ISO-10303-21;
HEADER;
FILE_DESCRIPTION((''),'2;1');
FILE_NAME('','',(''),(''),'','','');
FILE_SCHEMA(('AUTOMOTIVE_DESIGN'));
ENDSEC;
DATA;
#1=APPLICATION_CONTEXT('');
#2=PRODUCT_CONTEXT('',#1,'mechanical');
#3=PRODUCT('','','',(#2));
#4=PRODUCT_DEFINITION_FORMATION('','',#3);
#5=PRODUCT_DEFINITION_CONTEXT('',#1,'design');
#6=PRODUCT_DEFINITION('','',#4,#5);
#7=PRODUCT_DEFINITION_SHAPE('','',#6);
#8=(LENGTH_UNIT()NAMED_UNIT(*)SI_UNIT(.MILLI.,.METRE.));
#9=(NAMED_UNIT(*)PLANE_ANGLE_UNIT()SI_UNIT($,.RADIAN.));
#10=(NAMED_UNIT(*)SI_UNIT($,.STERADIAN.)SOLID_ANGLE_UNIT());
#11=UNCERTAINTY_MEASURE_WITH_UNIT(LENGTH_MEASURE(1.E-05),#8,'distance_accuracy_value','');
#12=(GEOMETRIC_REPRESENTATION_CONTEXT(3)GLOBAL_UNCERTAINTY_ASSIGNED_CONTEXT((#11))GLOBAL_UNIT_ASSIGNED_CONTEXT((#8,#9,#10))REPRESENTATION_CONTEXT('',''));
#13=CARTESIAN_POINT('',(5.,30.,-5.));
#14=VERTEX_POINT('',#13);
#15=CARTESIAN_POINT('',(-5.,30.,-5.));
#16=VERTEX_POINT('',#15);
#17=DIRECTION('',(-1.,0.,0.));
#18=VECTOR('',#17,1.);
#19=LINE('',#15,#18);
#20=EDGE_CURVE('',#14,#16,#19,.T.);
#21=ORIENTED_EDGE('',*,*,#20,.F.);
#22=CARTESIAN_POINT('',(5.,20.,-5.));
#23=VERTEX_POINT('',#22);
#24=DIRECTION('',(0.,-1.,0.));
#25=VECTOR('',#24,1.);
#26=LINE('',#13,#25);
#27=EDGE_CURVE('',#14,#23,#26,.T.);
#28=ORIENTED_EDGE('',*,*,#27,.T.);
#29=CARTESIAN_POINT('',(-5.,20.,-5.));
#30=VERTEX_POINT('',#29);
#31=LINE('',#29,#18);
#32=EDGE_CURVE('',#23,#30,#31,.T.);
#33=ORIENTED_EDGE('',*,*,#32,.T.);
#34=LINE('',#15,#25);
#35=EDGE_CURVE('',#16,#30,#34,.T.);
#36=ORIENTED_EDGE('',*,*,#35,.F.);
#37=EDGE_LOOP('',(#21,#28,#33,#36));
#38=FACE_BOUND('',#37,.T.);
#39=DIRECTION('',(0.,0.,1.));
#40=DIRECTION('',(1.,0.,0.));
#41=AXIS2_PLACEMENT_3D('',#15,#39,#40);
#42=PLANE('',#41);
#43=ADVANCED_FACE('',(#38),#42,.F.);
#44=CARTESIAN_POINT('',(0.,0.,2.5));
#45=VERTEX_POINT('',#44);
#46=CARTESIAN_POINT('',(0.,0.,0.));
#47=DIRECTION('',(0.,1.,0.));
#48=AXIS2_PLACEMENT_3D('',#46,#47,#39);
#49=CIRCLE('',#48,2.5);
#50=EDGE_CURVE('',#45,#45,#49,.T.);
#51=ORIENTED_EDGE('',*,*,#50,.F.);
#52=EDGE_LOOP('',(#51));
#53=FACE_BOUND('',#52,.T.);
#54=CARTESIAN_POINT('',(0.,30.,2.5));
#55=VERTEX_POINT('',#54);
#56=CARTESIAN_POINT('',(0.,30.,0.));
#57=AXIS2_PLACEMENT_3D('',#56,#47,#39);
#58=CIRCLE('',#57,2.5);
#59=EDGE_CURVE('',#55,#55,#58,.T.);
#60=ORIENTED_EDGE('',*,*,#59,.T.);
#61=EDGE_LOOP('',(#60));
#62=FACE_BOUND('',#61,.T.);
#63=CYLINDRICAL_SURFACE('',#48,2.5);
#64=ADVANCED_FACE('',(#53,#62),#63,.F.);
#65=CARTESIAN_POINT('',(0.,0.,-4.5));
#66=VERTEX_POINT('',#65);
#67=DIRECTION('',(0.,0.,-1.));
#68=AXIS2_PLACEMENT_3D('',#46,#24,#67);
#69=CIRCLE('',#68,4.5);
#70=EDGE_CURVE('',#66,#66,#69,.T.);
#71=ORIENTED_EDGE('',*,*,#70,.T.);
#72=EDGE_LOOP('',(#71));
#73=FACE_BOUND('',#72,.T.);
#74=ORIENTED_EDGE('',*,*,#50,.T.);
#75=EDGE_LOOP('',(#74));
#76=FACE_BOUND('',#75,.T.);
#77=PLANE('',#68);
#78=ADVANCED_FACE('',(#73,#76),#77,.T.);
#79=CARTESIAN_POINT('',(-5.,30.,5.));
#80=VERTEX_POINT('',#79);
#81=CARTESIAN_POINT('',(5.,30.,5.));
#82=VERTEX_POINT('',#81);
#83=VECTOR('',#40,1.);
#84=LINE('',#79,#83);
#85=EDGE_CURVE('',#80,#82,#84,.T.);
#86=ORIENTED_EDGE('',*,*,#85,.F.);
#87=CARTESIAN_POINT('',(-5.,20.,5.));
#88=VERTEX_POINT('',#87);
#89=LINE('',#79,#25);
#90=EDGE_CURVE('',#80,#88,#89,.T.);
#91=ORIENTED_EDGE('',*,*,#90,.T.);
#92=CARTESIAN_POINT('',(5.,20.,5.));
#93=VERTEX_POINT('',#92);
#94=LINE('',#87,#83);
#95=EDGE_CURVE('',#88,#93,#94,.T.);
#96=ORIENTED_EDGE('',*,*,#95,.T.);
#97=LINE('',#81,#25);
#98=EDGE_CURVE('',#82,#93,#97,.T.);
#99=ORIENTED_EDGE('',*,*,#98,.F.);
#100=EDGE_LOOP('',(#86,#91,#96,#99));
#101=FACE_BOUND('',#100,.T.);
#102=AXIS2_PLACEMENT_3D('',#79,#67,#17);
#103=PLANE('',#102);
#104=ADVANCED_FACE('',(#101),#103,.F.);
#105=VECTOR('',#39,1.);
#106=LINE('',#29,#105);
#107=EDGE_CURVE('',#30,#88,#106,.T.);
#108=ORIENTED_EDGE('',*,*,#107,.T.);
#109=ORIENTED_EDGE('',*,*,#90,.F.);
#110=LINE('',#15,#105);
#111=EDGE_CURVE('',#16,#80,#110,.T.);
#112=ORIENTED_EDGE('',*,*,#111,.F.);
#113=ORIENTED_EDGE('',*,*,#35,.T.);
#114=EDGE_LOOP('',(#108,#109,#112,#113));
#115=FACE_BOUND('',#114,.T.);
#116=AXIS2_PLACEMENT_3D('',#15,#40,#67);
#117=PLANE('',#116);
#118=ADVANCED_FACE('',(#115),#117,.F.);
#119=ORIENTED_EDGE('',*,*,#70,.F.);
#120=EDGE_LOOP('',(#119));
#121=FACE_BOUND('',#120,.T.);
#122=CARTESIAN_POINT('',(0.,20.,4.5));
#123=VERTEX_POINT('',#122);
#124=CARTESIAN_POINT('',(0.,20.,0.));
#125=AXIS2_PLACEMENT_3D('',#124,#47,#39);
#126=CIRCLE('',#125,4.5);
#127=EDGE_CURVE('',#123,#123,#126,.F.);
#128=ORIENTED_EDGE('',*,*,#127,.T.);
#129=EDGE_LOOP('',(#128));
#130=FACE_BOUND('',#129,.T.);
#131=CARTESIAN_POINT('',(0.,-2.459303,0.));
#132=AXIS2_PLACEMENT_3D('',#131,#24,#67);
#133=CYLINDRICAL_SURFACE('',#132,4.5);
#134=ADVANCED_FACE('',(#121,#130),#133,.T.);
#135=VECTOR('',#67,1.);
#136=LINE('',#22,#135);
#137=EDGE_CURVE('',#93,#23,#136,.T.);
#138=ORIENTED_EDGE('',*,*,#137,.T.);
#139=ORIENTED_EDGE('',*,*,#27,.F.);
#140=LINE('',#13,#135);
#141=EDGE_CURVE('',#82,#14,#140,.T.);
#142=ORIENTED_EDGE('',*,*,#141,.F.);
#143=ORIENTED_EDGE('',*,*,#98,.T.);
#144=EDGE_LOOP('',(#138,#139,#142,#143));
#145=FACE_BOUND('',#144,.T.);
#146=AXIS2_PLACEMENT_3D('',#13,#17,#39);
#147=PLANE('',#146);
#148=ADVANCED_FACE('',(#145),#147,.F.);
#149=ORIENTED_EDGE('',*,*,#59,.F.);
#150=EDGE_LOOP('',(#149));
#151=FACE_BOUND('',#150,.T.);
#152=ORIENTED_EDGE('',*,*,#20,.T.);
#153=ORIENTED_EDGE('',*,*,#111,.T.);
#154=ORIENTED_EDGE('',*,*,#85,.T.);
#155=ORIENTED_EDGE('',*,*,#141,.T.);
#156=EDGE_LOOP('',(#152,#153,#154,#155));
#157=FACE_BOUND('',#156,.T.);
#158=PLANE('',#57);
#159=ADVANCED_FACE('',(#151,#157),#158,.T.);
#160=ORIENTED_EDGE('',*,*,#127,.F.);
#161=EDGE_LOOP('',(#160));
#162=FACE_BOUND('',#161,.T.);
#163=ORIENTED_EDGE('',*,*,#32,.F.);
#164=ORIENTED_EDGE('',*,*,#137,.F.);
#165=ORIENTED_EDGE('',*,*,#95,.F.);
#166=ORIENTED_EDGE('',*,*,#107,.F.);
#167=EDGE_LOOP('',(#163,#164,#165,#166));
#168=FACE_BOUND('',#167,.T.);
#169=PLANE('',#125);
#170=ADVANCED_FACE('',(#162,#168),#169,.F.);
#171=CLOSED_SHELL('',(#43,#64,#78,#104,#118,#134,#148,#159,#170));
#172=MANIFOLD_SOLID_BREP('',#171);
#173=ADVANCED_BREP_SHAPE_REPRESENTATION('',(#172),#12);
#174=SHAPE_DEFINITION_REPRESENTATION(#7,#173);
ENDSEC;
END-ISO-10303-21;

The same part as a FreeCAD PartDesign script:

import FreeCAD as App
import Part
import Sketcher
Q = App.Units.Quantity

doc = App.newDocument("Part")
body = doc.addObject("PartDesign::Body", "Body")

sketch1 = doc.addObject("Sketcher::SketchObject", "Sketch")
body.addObject(sketch1)
sketch1.AttachmentSupport = (doc.XY_Plane, [""])
sketch1.MapMode = "FlatFace"
sketch1.addGeometry([
    Part.LineSegment(App.Vector(0, 20, 0), App.Vector(0, 0, 0)),
    Part.LineSegment(App.Vector(0, 0, 0), App.Vector(4.5, 0, 0)),
    Part.LineSegment(App.Vector(4.5, 0, 0), App.Vector(4.5, 20, 0)),
    Part.LineSegment(App.Vector(4.5, 20, 0), App.Vector(0, 20, 0)),
], False)
sketch1.addConstraint([
    Sketcher.Constraint("Coincident", 0, 2, 1, 1),
    Sketcher.Constraint("Coincident", 1, 2, 2, 1),
    Sketcher.Constraint("Coincident", 2, 2, 3, 1),
    Sketcher.Constraint("Coincident", 3, 2, 0, 1),
    Sketcher.Constraint("Vertical", 0),
    Sketcher.Constraint("Horizontal", 1),
    Sketcher.Constraint("Vertical", 2),
    Sketcher.Constraint("Horizontal", 3),
    Sketcher.Constraint("Coincident", 0, 2, -1, 1),
    Sketcher.Constraint("DistanceY", 0, 2, 0, 1, Q("20 mm")),
    Sketcher.Constraint("DistanceX", 1, 1, 1, 2, Q("4.5 mm")),
])
revolution = doc.addObject("PartDesign::Revolution", "Revolution")
body.addObject(revolution)
revolution.Profile = sketch1
revolution.ReferenceAxis = (sketch1, ["V_Axis"])
revolution.Angle = 360

sketch2 = doc.addObject("Sketcher::SketchObject", "Sketch001")
body.addObject(sketch2)
sketch2.AttachmentSupport = (doc.XZ_Plane, [""])
sketch2.MapMode = "FlatFace"
sketch2.AttachmentOffset = App.Placement(App.Vector(0, 0, -20), App.Rotation())
sketch2.addGeometry([
    Part.LineSegment(App.Vector(-5, -5, 0), App.Vector(-5, 5, 0)),
    Part.LineSegment(App.Vector(-5, 5, 0), App.Vector(5, 5, 0)),
    Part.LineSegment(App.Vector(5, 5, 0), App.Vector(5, -5, 0)),
    Part.LineSegment(App.Vector(5, -5, 0), App.Vector(-5, -5, 0)),
], False)
sketch2.addConstraint([
    Sketcher.Constraint("Coincident", 0, 2, 1, 1),
    Sketcher.Constraint("Coincident", 1, 2, 2, 1),
    Sketcher.Constraint("Coincident", 2, 2, 3, 1),
    Sketcher.Constraint("Coincident", 3, 2, 0, 1),
    Sketcher.Constraint("Vertical", 0),
    Sketcher.Constraint("Horizontal", 1),
    Sketcher.Constraint("Vertical", 2),
    Sketcher.Constraint("Horizontal", 3),
    Sketcher.Constraint("Symmetric", 0, 2, 2, 2, -1, 1),
    Sketcher.Constraint("Equal", 3, 0),
    Sketcher.Constraint("DistanceX", 1, 1, 1, 2, Q("10 mm")),
])
pad1 = doc.addObject("PartDesign::Pad", "Pad")
body.addObject(pad1)
pad1.Profile = sketch2
pad1.Length = 10
pad1.Reversed = True

sketch3 = doc.addObject("Sketcher::SketchObject", "Sketch002")
body.addObject(sketch3)
sketch3.AttachmentSupport = (doc.XZ_Plane, [""])
sketch3.MapMode = "FlatFace"
sketch3.AttachmentOffset = App.Placement(App.Vector(0, 0, -30), App.Rotation())
sketch3.addGeometry(Part.Circle(App.Vector(0, 0, 0), App.Vector(0, 0, 1), 2.5), False)
sketch3.addConstraint([
    Sketcher.Constraint("Coincident", 0, 3, -1, 1),
    Sketcher.Constraint("Diameter", 0, Q("5 mm")),
])
pocket1 = doc.addObject("PartDesign::Pocket", "Pocket")
body.addObject(pocket1)
pocket1.Profile = sketch3
pocket1.Type = "ThroughAll"
pocket1.Reversed = True

doc.recompute()
